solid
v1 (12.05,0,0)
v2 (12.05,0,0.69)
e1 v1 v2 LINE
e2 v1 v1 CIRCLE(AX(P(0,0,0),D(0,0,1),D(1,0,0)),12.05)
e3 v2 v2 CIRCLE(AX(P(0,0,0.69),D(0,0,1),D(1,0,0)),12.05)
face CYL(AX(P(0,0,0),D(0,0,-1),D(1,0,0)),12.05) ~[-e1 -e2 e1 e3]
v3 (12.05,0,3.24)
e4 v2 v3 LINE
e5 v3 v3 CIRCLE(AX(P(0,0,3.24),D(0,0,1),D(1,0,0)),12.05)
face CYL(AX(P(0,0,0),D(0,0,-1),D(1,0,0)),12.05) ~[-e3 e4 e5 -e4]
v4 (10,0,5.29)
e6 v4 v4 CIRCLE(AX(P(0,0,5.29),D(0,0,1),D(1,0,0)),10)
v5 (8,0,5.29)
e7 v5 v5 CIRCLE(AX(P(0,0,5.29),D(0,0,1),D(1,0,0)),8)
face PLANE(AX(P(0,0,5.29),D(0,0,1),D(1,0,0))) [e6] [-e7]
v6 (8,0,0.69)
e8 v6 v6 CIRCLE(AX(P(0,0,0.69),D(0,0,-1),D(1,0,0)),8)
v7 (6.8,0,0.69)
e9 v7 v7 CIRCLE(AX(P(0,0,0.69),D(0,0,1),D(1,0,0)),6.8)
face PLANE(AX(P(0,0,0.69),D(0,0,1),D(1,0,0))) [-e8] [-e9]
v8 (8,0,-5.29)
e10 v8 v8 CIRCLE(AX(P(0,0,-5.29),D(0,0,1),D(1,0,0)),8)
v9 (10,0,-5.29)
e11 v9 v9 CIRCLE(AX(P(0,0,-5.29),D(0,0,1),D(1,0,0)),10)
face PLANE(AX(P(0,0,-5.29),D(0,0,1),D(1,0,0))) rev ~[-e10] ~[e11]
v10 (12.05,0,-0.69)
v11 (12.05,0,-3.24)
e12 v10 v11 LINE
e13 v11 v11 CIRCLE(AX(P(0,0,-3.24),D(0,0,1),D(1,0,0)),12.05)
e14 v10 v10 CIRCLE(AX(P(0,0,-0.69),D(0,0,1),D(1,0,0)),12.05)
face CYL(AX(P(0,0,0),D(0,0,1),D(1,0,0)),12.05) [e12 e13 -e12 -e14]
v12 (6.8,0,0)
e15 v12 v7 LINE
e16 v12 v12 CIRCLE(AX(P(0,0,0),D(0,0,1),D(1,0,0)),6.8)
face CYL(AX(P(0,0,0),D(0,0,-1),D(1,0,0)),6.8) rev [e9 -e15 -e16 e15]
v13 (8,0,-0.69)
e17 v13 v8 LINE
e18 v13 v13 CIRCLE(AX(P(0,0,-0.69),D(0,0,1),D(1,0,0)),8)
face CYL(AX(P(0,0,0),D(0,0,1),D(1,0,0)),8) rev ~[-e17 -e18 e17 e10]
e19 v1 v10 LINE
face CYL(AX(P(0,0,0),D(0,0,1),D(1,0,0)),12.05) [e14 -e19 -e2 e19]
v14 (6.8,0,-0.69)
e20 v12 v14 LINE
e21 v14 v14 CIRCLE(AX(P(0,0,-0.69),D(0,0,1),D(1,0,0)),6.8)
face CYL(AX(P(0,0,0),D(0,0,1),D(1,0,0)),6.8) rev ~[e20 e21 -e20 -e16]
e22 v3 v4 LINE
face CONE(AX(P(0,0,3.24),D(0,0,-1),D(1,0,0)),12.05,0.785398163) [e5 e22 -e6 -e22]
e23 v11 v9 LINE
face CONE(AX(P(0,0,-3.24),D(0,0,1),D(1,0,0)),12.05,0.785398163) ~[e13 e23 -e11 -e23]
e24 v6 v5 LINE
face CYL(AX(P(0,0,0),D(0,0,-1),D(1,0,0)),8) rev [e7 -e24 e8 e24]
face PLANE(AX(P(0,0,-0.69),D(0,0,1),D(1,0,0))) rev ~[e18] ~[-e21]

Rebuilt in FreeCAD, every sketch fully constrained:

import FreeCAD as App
import Part
import Sketcher
Q = App.Units.Quantity


def edges_at(feature, points):
    """Names of the edges that pass closest to the given points."""
    edges = feature.Shape.Edges
    near = lambda p: min(range(len(edges)), key=lambda i: edges[i].distToShape(Part.Vertex(*p))[0])
    return sorted({f"Edge{near(p) + 1}" for p in points})

doc = App.newDocument("Part")
body = doc.addObject("PartDesign::Body", "Body")

sketch1 = body.newObject("Sketcher::SketchObject", "Sketch")
sketch1.AttachmentSupport = (doc.getObject("XY_Plane"), [""])
sketch1.MapMode = "FlatFace"
sketch1.addGeometry([
    Part.Circle(App.Vector(0, 0, 0), App.Vector(0, 0, 1), 12),
    Part.Circle(App.Vector(0, 0, 0), App.Vector(0, 0, 1), 7),
], False)
sketch1.addConstraint([
    Sketcher.Constraint("Coincident", 0, 3, -1, 1),
    Sketcher.Constraint("Coincident", 1, 3, -1, 1),
    Sketcher.Constraint("Diameter", 0, Q("24.1 mm")),
    Sketcher.Constraint("Diameter", 1, Q("13.6 mm")),
])
pad1 = body.newObject("PartDesign::Pad", "Pad")
pad1.Profile = sketch1
pad1.Length = 1.38
pad1.Midplane = True

sketch2 = body.newObject("Sketcher::SketchObject", "Sketch001")
sketch2.AttachmentSupport = (doc.getObject("XY_Plane"), [""])
sketch2.MapMode = "FlatFace"
sketch2.addGeometry([
    Part.Circle(App.Vector(0, 0, 0), App.Vector(0, 0, 1), 12),
    Part.Circle(App.Vector(0, 0, 0), App.Vector(0, 0, 1), 8),
], False)
sketch2.addConstraint([
    Sketcher.Constraint("Coincident", 0, 3, -1, 1),
    Sketcher.Constraint("Coincident", 1, 3, -1, 1),
    Sketcher.Constraint("Diameter", 1, Q("16 mm")),
    Sketcher.Constraint("Diameter", 0, Q("24.1 mm")),
])
pad2 = body.newObject("PartDesign::Pad", "Pad001")
pad2.Profile = sketch2
pad2.Length = 10.58
pad2.Midplane = True
doc.recompute()

chamfer = body.newObject("PartDesign::Chamfer", "Chamfer")
chamfer.Base = (pad2, edges_at(pad2, [(-12.05, 0, 5.29), (-12.05, 0, -5.29)]))
chamfer.Size = 2.05

doc.recompute()
